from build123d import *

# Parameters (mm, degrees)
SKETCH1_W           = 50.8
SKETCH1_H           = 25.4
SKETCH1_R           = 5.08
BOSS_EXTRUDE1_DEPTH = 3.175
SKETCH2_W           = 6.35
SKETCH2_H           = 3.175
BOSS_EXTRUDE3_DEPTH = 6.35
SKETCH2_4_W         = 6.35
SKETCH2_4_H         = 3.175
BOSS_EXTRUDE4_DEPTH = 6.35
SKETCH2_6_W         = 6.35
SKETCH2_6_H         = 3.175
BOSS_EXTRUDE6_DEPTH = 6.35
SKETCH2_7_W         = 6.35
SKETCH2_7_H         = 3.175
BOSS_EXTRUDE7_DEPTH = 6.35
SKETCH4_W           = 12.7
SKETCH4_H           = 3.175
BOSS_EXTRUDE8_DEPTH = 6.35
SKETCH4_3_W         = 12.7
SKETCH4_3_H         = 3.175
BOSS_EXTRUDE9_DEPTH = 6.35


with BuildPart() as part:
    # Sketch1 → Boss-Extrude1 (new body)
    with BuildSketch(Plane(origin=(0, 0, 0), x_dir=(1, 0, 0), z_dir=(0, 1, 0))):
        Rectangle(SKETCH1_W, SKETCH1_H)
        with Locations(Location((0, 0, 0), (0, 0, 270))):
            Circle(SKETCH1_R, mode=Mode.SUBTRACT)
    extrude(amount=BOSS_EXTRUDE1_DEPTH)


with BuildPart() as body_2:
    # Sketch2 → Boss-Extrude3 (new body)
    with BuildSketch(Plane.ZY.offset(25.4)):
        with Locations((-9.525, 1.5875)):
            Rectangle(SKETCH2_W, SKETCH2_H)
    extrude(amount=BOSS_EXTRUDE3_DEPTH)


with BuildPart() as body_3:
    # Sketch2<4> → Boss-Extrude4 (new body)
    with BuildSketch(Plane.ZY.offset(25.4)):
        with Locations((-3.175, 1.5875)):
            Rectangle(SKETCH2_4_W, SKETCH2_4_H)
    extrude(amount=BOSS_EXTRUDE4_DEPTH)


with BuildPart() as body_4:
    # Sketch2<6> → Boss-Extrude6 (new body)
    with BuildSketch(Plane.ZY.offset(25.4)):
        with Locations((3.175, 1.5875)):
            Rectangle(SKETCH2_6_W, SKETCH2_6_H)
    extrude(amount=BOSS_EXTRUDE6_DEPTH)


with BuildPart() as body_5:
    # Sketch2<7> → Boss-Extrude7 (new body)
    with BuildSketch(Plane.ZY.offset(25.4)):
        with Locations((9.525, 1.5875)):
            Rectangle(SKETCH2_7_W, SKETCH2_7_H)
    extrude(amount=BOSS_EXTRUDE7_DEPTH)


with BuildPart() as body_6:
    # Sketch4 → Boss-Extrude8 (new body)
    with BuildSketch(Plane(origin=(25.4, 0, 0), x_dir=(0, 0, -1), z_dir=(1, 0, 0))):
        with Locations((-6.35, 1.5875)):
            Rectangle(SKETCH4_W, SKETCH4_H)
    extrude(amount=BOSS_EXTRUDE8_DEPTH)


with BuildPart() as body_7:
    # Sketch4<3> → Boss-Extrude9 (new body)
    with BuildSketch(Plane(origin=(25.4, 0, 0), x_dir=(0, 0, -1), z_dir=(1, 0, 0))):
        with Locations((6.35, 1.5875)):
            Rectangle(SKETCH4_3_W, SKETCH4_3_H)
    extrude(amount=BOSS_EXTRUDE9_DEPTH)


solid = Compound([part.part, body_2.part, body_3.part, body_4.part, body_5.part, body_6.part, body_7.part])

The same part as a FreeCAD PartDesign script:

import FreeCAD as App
import Part
import Sketcher
from FreeCAD import Vector
Q = App.Units.Quantity

doc = App.newDocument("Part")
params = doc.addObject("Spreadsheet::Sheet", "Params")
for row, (alias, value) in enumerate([
    ("sketch1_diameter", "0.4 in"),
    ("sketch1_width", "2 in"),
    ("sketch1_height", "1 in"),
    ("pad1_length", "0.125 in"),
    ("sketch2_height", "0.25 in"),
    ("sketch2_width", "0.125 in"),
    ("pad2_length", "0.25 in"),
    ("sketch3_height", "0.25 in"),
    ("sketch3_width", "0.125 in"),
    ("pad3_length", "0.25 in"),
    ("sketch4_height", "0.25 in"),
    ("sketch4_width", "0.125 in"),
    ("pad4_length", "0.25 in"),
    ("sketch5_height", "0.25 in"),
    ("sketch5_width", "0.125 in"),
    ("pad5_length", "0.25 in"),
    ("sketch6_height", "0.5 in"),
    ("sketch6_width", "0.125 in"),
    ("pad6_length", "0.25 in"),
    ("sketch7_height", "0.5 in"),
    ("sketch7_width", "0.125 in"),
    ("pad7_length", "0.25 in"),
], start=1):
    params.set(f"A{row}", alias)
    params.set(f"B{row}", "=" + value)
    params.setAlias(f"B{row}", alias)

body = doc.addObject("PartDesign::Body", "Body")

# Sketch on XZ plane
sketch1 = body.newObject("Sketcher::SketchObject", "Sketch")
sketch1.AttachmentSupport = (doc.getObject("XZ_Plane"), [""])
sketch1.MapMode = "FlatFace"
sketch1.addGeometry(Part.LineSegment(Vector(-25.4, -12.7, 0), Vector(-25.4, 12.7, 0)), False)
sketch1.addGeometry(Part.LineSegment(Vector(-25.4, 12.7, 0), Vector(25.4, 12.7, 0)), False)
sketch1.addGeometry(Part.LineSegment(Vector(25.4, 12.7, 0), Vector(25.4, -12.7, 0)), False)
sketch1.addGeometry(Part.LineSegment(Vector(25.4, -12.7, 0), Vector(-25.4, -12.7, 0)), False)
sketch1.addGeometry(Part.Circle(Vector(0, 0, 0), Vector(0, 0, 1), 5.08), False)
sketch1.addConstraint(Sketcher.Constraint("Coincident", 0, 2, 1, 1))
sketch1.addConstraint(Sketcher.Constraint("Coincident", 1, 2, 2, 1))
sketch1.addConstraint(Sketcher.Constraint("Coincident", 2, 2, 3, 1))
sketch1.addConstraint(Sketcher.Constraint("Coincident", 3, 2, 0, 1))
sketch1.addConstraint(Sketcher.Constraint("Vertical", 0))
sketch1.addConstraint(Sketcher.Constraint("Horizontal", 1))
sketch1.addConstraint(Sketcher.Constraint("Vertical", 2))
sketch1.addConstraint(Sketcher.Constraint("Horizontal", 3))
sketch1.addConstraint(Sketcher.Constraint("Coincident", 4, 3, -1, 1))
sketch1.addConstraint(Sketcher.Constraint("Symmetric", 0, 2, 2, 2, -1, 1))
sketch1.addConstraint(Sketcher.Constraint("Diameter", 4, Q("0.4 in")))
sketch1.addConstraint(Sketcher.Constraint("DistanceX", 1, 1, 1, 2, Q("2 in")))
sketch1.addConstraint(Sketcher.Constraint("DistanceY", 0, 1, 0, 2, Q("1 in")))
sketch1.setExpression("Constraints[10]", "Params.sketch1_diameter")
sketch1.setExpression("Constraints[11]", "Params.sketch1_width")
sketch1.setExpression("Constraints[12]", "Params.sketch1_height")
pad1 = body.newObject("PartDesign::Pad", "Pad")
pad1.Profile = sketch1
pad1.setExpression("Length", "Params.pad1_length")
pad1.Reversed = True
body2 = doc.addObject("PartDesign::Body", "Body001")

# Sketch on YZ plane
sketch2 = body2.newObject("Sketcher::SketchObject", "Sketch001")
sketch2.AttachmentSupport = (doc.getObject("YZ_Plane001"), [""])
sketch2.MapMode = "FlatFace"
sketch2.AttachmentOffset = App.Placement(Vector(0, 0, -1 * 25.4), App.Rotation())
sketch2.addGeometry(Part.LineSegment(Vector(3.175, -12.7, 0), Vector(0, -12.7, 0)), False)
sketch2.addGeometry(Part.LineSegment(Vector(0, -12.7, 0), Vector(0, -6.35, 0)), False)
sketch2.addGeometry(Part.LineSegment(Vector(0, -6.35, 0), Vector(3.175, -6.35, 0)), False)
sketch2.addGeometry(Part.LineSegment(Vector(3.175, -6.35, 0), Vector(3.175, -12.7, 0)), False)
sketch2.addConstraint(Sketcher.Constraint("Coincident", 0, 2, 1, 1))
sketch2.addConstraint(Sketcher.Constraint("Coincident", 1, 2, 2, 1))
sketch2.addConstraint(Sketcher.Constraint("Coincident", 2, 2, 3, 1))
sketch2.addConstraint(Sketcher.Constraint("Coincident", 3, 2, 0, 1))
sketch2.addConstraint(Sketcher.Constraint("Horizontal", 0))
sketch2.addConstraint(Sketcher.Constraint("Vertical", 1))
sketch2.addConstraint(Sketcher.Constraint("Horizontal", 2))
sketch2.addConstraint(Sketcher.Constraint("Vertical", 3))
sketch2.addConstraint(Sketcher.Constraint("PointOnObject", 0, 2, -2))
sketch2.addConstraint(Sketcher.Constraint("DistanceY", 1, 1, 1, 2, Q("0.25 in")))
sketch2.addConstraint(Sketcher.Constraint("DistanceY", 0, 2, -1, 1, Q("0.5 in")))
sketch2.addConstraint(Sketcher.Constraint("DistanceX", 0, 2, 0, 1, Q("0.125 in")))
sketch2.setExpression("Constraints[9]", "Params.sketch2_height")
sketch2.setExpression("Constraints[11]", "Params.sketch2_width")
pad2 = body2.newObject("PartDesign::Pad", "Pad001")
pad2.Profile = sketch2
pad2.setExpression("Length", "Params.pad2_length")
pad2.Reversed = True
body3 = doc.addObject("PartDesign::Body", "Body002")

# Sketch on YZ plane
sketch3 = body3.newObject("Sketcher::SketchObject", "Sketch002")
sketch3.AttachmentSupport = (doc.getObject("YZ_Plane002"), [""])
sketch3.MapMode = "FlatFace"
sketch3.AttachmentOffset = App.Placement(Vector(0, 0, -1 * 25.4), App.Rotation())
sketch3.addGeometry(Part.LineSegment(Vector(3.175, -6.35, 0), Vector(0, -6.35, 0)), False)
sketch3.addGeometry(Part.LineSegment(Vector(0, -6.35, 0), Vector(0, 0, 0)), False)
sketch3.addGeometry(Part.LineSegment(Vector(0, 0, 0), Vector(3.175, 0, 0)), False)
sketch3.addGeometry(Part.LineSegment(Vector(3.175, 0, 0), Vector(3.175, -6.35, 0)), False)
sketch3.addConstraint(Sketcher.Constraint("Coincident", 0, 2, 1, 1))
sketch3.addConstraint(Sketcher.Constraint("Coincident", 1, 2, 2, 1))
sketch3.addConstraint(Sketcher.Constraint("Coincident", 2, 2, 3, 1))
sketch3.addConstraint(Sketcher.Constraint("Coincident", 3, 2, 0, 1))
sketch3.addConstraint(Sketcher.Constraint("Horizontal", 0))
sketch3.addConstraint(Sketcher.Constraint("Vertical", 1))
sketch3.addConstraint(Sketcher.Constraint("Horizontal", 2))
sketch3.addConstraint(Sketcher.Constraint("Vertical", 3))
sketch3.addConstraint(Sketcher.Constraint("Coincident", 1, 2, -1, 1))
sketch3.addConstraint(Sketcher.Constraint("DistanceY", 1, 1, 1, 2, Q("0.25 in")))
sketch3.addConstraint(Sketcher.Constraint("DistanceX", 0, 2, 0, 1, Q("0.125 in")))
sketch3.setExpression("Constraints[9]", "Params.sketch3_height")
sketch3.setExpression("Constraints[10]", "Params.sketch3_width")
pad3 = body3.newObject("PartDesign::Pad", "Pad002")
pad3.Profile = sketch3
pad3.setExpression("Length", "Params.pad3_length")
pad3.Reversed = True
body4 = doc.addObject("PartDesign::Body", "Body003")

# Sketch on YZ plane
sketch4 = body4.newObject("Sketcher::SketchObject", "Sketch003")
sketch4.AttachmentSupport = (doc.getObject("YZ_Plane003"), [""])
sketch4.MapMode = "FlatFace"
sketch4.AttachmentOffset = App.Placement(Vector(0, 0, -1 * 25.4), App.Rotation())
sketch4.addGeometry(Part.LineSegment(Vector(3.175, 0, 0), Vector(0, 0, 0)), False)
sketch4.addGeometry(Part.LineSegment(Vector(0, 0, 0), Vector(0, 6.35, 0)), False)
sketch4.addGeometry(Part.LineSegment(Vector(0, 6.35, 0), Vector(3.175, 6.35, 0)), False)
sketch4.addGeometry(Part.LineSegment(Vector(3.175, 6.35, 0), Vector(3.175, 0, 0)), False)
sketch4.addConstraint(Sketcher.Constraint("Coincident", 0, 2, 1, 1))
sketch4.addConstraint(Sketcher.Constraint("Coincident", 1, 2, 2, 1))
sketch4.addConstraint(Sketcher.Constraint("Coincident", 2, 2, 3, 1))
sketch4.addConstraint(Sketcher.Constraint("Coincident", 3, 2, 0, 1))
sketch4.addConstraint(Sketcher.Constraint("Horizontal", 0))
sketch4.addConstraint(Sketcher.Constraint("Vertical", 1))
sketch4.addConstraint(Sketcher.Constraint("Horizontal", 2))
sketch4.addConstraint(Sketcher.Constraint("Vertical", 3))
sketch4.addConstraint(Sketcher.Constraint("Coincident", 0, 2, -1, 1))
sketch4.addConstraint(Sketcher.Constraint("DistanceY", 1, 1, 1, 2, Q("0.25 in")))
sketch4.addConstraint(Sketcher.Constraint("DistanceX", 0, 2, 0, 1, Q("0.125 in")))
sketch4.setExpression("Constraints[9]", "Params.sketch4_height")
sketch4.setExpression("Constraints[10]", "Params.sketch4_width")
pad4 = body4.newObject("PartDesign::Pad", "Pad003")
pad4.Profile = sketch4
pad4.setExpression("Length", "Params.pad4_length")
pad4.Reversed = True
body5 = doc.addObject("PartDesign::Body", "Body004")

# Sketch on YZ plane
sketch5 = body5.newObject("Sketcher::SketchObject", "Sketch004")
sketch5.AttachmentSupport = (doc.getObject("YZ_Plane004"), [""])
sketch5.MapMode = "FlatFace"
sketch5.AttachmentOffset = App.Placement(Vector(0, 0, -1 * 25.4), App.Rotation())
sketch5.addGeometry(Part.LineSegment(Vector(3.175, 6.35, 0), Vector(0, 6.35, 0)), False)
sketch5.addGeometry(Part.LineSegment(Vector(0, 6.35, 0), Vector(0, 12.7, 0)), False)
sketch5.addGeometry(Part.LineSegment(Vector(0, 12.7, 0), Vector(3.175, 12.7, 0)), False)
sketch5.addGeometry(Part.LineSegment(Vector(3.175, 12.7, 0), Vector(3.175, 6.35, 0)), False)
sketch5.addConstraint(Sketcher.Constraint("Coincident", 0, 2, 1, 1))
sketch5.addConstraint(Sketcher.Constraint("Coincident", 1, 2, 2, 1))
sketch5.addConstraint(Sketcher.Constraint("Coincident", 2, 2, 3, 1))
sketch5.addConstraint(Sketcher.Constraint("Coincident", 3, 2, 0, 1))
sketch5.addConstraint(Sketcher.Constraint("Horizontal", 0))
sketch5.addConstraint(Sketcher.Constraint("Vertical", 1))
sketch5.addConstraint(Sketcher.Constraint("Horizontal", 2))
sketch5.addConstraint(Sketcher.Constraint("Vertical", 3))
sketch5.addConstraint(Sketcher.Constraint("PointOnObject", 0, 2, -2))
sketch5.addConstraint(Sketcher.Constraint("DistanceY", 1, 1, 1, 2, Q("0.25 in")))
sketch5.addConstraint(Sketcher.Constraint("DistanceY", -1, 1, 1, 2, Q("0.5 in")))
sketch5.addConstraint(Sketcher.Constraint("DistanceX", 0, 2, 0, 1, Q("0.125 in")))
sketch5.setExpression("Constraints[9]", "Params.sketch5_height")
sketch5.setExpression("Constraints[11]", "Params.sketch5_width")
pad5 = body5.newObject("PartDesign::Pad", "Pad004")
pad5.Profile = sketch5
pad5.setExpression("Length", "Params.pad5_length")
pad5.Reversed = True
body6 = doc.addObject("PartDesign::Body", "Body005")

# Sketch on YZ plane
sketch6 = body6.newObject("Sketcher::SketchObject", "Sketch005")
sketch6.AttachmentSupport = (doc.getObject("YZ_Plane005"), [""])
sketch6.MapMode = "FlatFace"
sketch6.AttachmentOffset = App.Placement(Vector(0, 0, 1 * 25.4), App.Rotation())
sketch6.addGeometry(Part.LineSegment(Vector(3.175, 12.7, 0), Vector(0, 12.7, 0)), False)
sketch6.addGeometry(Part.LineSegment(Vector(0, 12.7, 0), Vector(0, 0, 0)), False)
sketch6.addGeometry(Part.LineSegment(Vector(0, 0, 0), Vector(3.175, 0, 0)), False)
sketch6.addGeometry(Part.LineSegment(Vector(3.175, 0, 0), Vector(3.175, 12.7, 0)), False)
sketch6.addConstraint(Sketcher.Constraint("Coincident", 0, 2, 1, 1))
sketch6.addConstraint(Sketcher.Constraint("Coincident", 1, 2, 2, 1))
sketch6.addConstraint(Sketcher.Constraint("Coincident", 2, 2, 3, 1))
sketch6.addConstraint(Sketcher.Constraint("Coincident", 3, 2, 0, 1))
sketch6.addConstraint(Sketcher.Constraint("Horizontal", 0))
sketch6.addConstraint(Sketcher.Constraint("Vertical", 1))
sketch6.addConstraint(Sketcher.Constraint("Horizontal", 2))
sketch6.addConstraint(Sketcher.Constraint("Vertical", 3))
sketch6.addConstraint(Sketcher.Constraint("Coincident", 1, 2, -1, 1))
sketch6.addConstraint(Sketcher.Constraint("DistanceY", 1, 2, 1, 1, Q("0.5 in")))
sketch6.addConstraint(Sketcher.Constraint("DistanceX", 0, 2, 0, 1, Q("0.125 in")))
sketch6.setExpression("Constraints[9]", "Params.sketch6_height")
sketch6.setExpression("Constraints[10]", "Params.sketch6_width")
pad6 = body6.newObject("PartDesign::Pad", "Pad005")
pad6.Profile = sketch6
pad6.setExpression("Length", "Params.pad6_length")
body7 = doc.addObject("PartDesign::Body", "Body006")

# Sketch on YZ plane
sketch7 = body7.newObject("Sketcher::SketchObject", "Sketch006")
sketch7.AttachmentSupport = (doc.getObject("YZ_Plane006"), [""])
sketch7.MapMode = "FlatFace"
sketch7.AttachmentOffset = App.Placement(Vector(0, 0, 1 * 25.4), App.Rotation())
sketch7.addGeometry(Part.LineSegment(Vector(3.175, 0, 0), Vector(0, 0, 0)), False)
sketch7.addGeometry(Part.LineSegment(Vector(0, 0, 0), Vector(0, -12.7, 0)), False)
sketch7.addGeometry(Part.LineSegment(Vector(0, -12.7, 0), Vector(3.175, -12.7, 0)), False)
sketch7.addGeometry(Part.LineSegment(Vector(3.175, -12.7, 0), Vector(3.175, 0, 0)), False)
sketch7.addConstraint(Sketcher.Constraint("Coincident", 0, 2, 1, 1))
sketch7.addConstraint(Sketcher.Constraint("Coincident", 1, 2, 2, 1))
sketch7.addConstraint(Sketcher.Constraint("Coincident", 2, 2, 3, 1))
sketch7.addConstraint(Sketcher.Constraint("Coincident", 3, 2, 0, 1))
sketch7.addConstraint(Sketcher.Constraint("Horizontal", 0))
sketch7.addConstraint(Sketcher.Constraint("Vertical", 1))
sketch7.addConstraint(Sketcher.Constraint("Horizontal", 2))
sketch7.addConstraint(Sketcher.Constraint("Vertical", 3))
sketch7.addConstraint(Sketcher.Constraint("Coincident", 0, 2, -1, 1))
sketch7.addConstraint(Sketcher.Constraint("DistanceY", 1, 2, 1, 1, Q("0.5 in")))
sketch7.addConstraint(Sketcher.Constraint("DistanceX", 0, 2, 0, 1, Q("0.125 in")))
sketch7.setExpression("Constraints[9]", "Params.sketch7_height")
sketch7.setExpression("Constraints[10]", "Params.sketch7_width")
pad7 = body7.newObject("PartDesign::Pad", "Pad006")
pad7.Profile = sketch7
pad7.setExpression("Length", "Params.pad7_length")

doc.recompute()
